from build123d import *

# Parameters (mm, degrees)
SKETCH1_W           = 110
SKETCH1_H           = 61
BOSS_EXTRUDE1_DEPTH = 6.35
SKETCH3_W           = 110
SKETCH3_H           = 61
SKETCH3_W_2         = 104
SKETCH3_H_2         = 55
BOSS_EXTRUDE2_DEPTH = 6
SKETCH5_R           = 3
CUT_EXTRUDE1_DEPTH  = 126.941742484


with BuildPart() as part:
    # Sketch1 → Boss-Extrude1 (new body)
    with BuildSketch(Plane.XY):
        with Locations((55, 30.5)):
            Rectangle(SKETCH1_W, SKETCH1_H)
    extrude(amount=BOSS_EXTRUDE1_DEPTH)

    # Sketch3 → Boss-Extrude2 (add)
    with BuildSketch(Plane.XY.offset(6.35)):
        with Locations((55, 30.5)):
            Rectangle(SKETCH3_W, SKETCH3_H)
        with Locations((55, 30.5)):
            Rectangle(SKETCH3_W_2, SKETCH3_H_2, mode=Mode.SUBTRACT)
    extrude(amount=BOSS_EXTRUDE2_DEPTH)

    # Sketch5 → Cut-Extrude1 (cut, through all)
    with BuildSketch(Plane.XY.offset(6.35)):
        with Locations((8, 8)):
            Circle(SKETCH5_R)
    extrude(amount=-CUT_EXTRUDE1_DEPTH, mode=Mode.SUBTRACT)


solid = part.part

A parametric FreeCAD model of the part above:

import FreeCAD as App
import Part
import Sketcher

V = App.Vector

doc = App.newDocument("Part")
body = doc.addObject("PartDesign::Body", "Body")

# Sketch on XY plane
sketch1 = body.newObject("Sketcher::SketchObject", "Sketch")
sketch1.AttachmentSupport = (doc.getObject("XY_Plane"), [""])
sketch1.MapMode = "FlatFace"
sketch1.addGeometry(Part.LineSegment(V(0, 61, 0), V(0, 0, 0)), False)
sketch1.addGeometry(Part.LineSegment(V(0, 0, 0), V(110, 0, 0)), False)
sketch1.addGeometry(Part.LineSegment(V(110, 0, 0), V(110, 61, 0)), False)
sketch1.addGeometry(Part.LineSegment(V(110, 61, 0), V(0, 61, 0)), False)
sketch1.addConstraint(Sketcher.Constraint("Coincident", 0, 2, 1, 1))
sketch1.addConstraint(Sketcher.Constraint("Coincident", 1, 2, 2, 1))
sketch1.addConstraint(Sketcher.Constraint("Coincident", 2, 2, 3, 1))
sketch1.addConstraint(Sketcher.Constraint("Coincident", 3, 2, 0, 1))
sketch1.addConstraint(Sketcher.Constraint("Vertical", 0))
sketch1.addConstraint(Sketcher.Constraint("Horizontal", 1))
sketch1.addConstraint(Sketcher.Constraint("Vertical", 2))
sketch1.addConstraint(Sketcher.Constraint("Horizontal", 3))
sketch1.addConstraint(Sketcher.Constraint("Coincident", 0, 2, -1, 1))
sketch1.addConstraint(Sketcher.Constraint("DistanceX", 1, 1, 1, 2, 110.0))
sketch1.addConstraint(Sketcher.Constraint("DistanceY", 0, 2, 0, 1, 61.0))
pad1 = body.newObject("PartDesign::Pad", "Pad")
pad1.Profile = sketch1
pad1.Length = 6.35

# Sketch on XY plane
sketch2 = body.newObject("Sketcher::SketchObject", "Sketch001")
sketch2.AttachmentSupport = (doc.getObject("XY_Plane"), [""])
sketch2.MapMode = "FlatFace"
sketch2.AttachmentOffset = App.Placement(V(0, 0, 6.35), App.Rotation())
sketch2.addGeometry(Part.LineSegment(V(0, 61, 0), V(0, 0, 0)), False)
sketch2.addGeometry(Part.LineSegment(V(0, 0, 0), V(110, 0, 0)), False)
sketch2.addGeometry(Part.LineSegment(V(110, 0, 0), V(110, 61, 0)), False)
sketch2.addGeometry(Part.LineSegment(V(110, 61, 0), V(0, 61, 0)), False)
sketch2.addGeometry(Part.LineSegment(V(107, 3, 0), V(3, 3, 0)), False)
sketch2.addGeometry(Part.LineSegment(V(3, 3, 0), V(3, 58, 0)), False)
sketch2.addGeometry(Part.LineSegment(V(3, 58, 0), V(107, 58, 0)), False)
sketch2.addGeometry(Part.LineSegment(V(107, 58, 0), V(107, 3, 0)), False)
sketch2.addConstraint(Sketcher.Constraint("Coincident", 0, 2, 1, 1))
sketch2.addConstraint(Sketcher.Constraint("Coincident", 1, 2, 2, 1))
sketch2.addConstraint(Sketcher.Constraint("Coincident", 2, 2, 3, 1))
sketch2.addConstraint(Sketcher.Constraint("Coincident", 3, 2, 0, 1))
sketch2.addConstraint(Sketcher.Constraint("Coincident", 4, 2, 5, 1))
sketch2.addConstraint(Sketcher.Constraint("Coincident", 5, 2, 6, 1))
sketch2.addConstraint(Sketcher.Constraint("Coincident", 6, 2, 7, 1))
sketch2.addConstraint(Sketcher.Constraint("Coincident", 7, 2, 4, 1))
sketch2.addConstraint(Sketcher.Constraint("Vertical", 0))
sketch2.addConstraint(Sketcher.Constraint("Horizontal", 1))
sketch2.addConstraint(Sketcher.Constraint("Vertical", 2))
sketch2.addConstraint(Sketcher.Constraint("Horizontal", 3))
sketch2.addConstraint(Sketcher.Constraint("Horizontal", 4))
sketch2.addConstraint(Sketcher.Constraint("Vertical", 5))
sketch2.addConstraint(Sketcher.Constraint("Horizontal", 6))
sketch2.addConstraint(Sketcher.Constraint("Vertical", 7))
sketch2.addConstraint(Sketcher.Constraint("Coincident", 0, 2, -1, 1))
sketch2.addConstraint(Sketcher.Constraint("DistanceX", 1, 1, 1, 2, 110.0))
sketch2.addConstraint(Sketcher.Constraint("DistanceX", 4, 2, 4, 1, 104.0))
sketch2.addConstraint(Sketcher.Constraint("DistanceY", 0, 2, 0, 1, 61.0))
sketch2.addConstraint(Sketcher.Constraint("DistanceY", 5, 1, 5, 2, 55.0))
sketch2.addConstraint(Sketcher.Constraint("DistanceX", -1, 1, 4, 2, 3.0))
sketch2.addConstraint(Sketcher.Constraint("DistanceY", -1, 1, 4, 2, 3.0))
pad2 = body.newObject("PartDesign::Pad", "Pad001")
pad2.Profile = sketch2
pad2.Length = 6

# Sketch on XY plane
sketch3 = body.newObject("Sketcher::SketchObject", "Sketch002")
sketch3.AttachmentSupport = (doc.getObject("XY_Plane"), [""])
sketch3.MapMode = "FlatFace"
sketch3.AttachmentOffset = App.Placement(V(0, 0, 6.35), App.Rotation())
sketch3.addGeometry(Part.Circle(V(8, 8, 0), V(0, 0, 1), 3), False)
sketch3.addConstraint(Sketcher.Constraint("Diameter", 0, 6.0))
sketch3.addConstraint(Sketcher.Constraint("DistanceX", -1, 1, 0, 3, 8.0))
sketch3.addConstraint(Sketcher.Constraint("DistanceY", -1, 1, 0, 3, 8.0))
pocket1 = body.newObject("PartDesign::Pocket", "Pocket")
pocket1.Profile = sketch3
pocket1.Type = "ThroughAll"

doc.recompute()
